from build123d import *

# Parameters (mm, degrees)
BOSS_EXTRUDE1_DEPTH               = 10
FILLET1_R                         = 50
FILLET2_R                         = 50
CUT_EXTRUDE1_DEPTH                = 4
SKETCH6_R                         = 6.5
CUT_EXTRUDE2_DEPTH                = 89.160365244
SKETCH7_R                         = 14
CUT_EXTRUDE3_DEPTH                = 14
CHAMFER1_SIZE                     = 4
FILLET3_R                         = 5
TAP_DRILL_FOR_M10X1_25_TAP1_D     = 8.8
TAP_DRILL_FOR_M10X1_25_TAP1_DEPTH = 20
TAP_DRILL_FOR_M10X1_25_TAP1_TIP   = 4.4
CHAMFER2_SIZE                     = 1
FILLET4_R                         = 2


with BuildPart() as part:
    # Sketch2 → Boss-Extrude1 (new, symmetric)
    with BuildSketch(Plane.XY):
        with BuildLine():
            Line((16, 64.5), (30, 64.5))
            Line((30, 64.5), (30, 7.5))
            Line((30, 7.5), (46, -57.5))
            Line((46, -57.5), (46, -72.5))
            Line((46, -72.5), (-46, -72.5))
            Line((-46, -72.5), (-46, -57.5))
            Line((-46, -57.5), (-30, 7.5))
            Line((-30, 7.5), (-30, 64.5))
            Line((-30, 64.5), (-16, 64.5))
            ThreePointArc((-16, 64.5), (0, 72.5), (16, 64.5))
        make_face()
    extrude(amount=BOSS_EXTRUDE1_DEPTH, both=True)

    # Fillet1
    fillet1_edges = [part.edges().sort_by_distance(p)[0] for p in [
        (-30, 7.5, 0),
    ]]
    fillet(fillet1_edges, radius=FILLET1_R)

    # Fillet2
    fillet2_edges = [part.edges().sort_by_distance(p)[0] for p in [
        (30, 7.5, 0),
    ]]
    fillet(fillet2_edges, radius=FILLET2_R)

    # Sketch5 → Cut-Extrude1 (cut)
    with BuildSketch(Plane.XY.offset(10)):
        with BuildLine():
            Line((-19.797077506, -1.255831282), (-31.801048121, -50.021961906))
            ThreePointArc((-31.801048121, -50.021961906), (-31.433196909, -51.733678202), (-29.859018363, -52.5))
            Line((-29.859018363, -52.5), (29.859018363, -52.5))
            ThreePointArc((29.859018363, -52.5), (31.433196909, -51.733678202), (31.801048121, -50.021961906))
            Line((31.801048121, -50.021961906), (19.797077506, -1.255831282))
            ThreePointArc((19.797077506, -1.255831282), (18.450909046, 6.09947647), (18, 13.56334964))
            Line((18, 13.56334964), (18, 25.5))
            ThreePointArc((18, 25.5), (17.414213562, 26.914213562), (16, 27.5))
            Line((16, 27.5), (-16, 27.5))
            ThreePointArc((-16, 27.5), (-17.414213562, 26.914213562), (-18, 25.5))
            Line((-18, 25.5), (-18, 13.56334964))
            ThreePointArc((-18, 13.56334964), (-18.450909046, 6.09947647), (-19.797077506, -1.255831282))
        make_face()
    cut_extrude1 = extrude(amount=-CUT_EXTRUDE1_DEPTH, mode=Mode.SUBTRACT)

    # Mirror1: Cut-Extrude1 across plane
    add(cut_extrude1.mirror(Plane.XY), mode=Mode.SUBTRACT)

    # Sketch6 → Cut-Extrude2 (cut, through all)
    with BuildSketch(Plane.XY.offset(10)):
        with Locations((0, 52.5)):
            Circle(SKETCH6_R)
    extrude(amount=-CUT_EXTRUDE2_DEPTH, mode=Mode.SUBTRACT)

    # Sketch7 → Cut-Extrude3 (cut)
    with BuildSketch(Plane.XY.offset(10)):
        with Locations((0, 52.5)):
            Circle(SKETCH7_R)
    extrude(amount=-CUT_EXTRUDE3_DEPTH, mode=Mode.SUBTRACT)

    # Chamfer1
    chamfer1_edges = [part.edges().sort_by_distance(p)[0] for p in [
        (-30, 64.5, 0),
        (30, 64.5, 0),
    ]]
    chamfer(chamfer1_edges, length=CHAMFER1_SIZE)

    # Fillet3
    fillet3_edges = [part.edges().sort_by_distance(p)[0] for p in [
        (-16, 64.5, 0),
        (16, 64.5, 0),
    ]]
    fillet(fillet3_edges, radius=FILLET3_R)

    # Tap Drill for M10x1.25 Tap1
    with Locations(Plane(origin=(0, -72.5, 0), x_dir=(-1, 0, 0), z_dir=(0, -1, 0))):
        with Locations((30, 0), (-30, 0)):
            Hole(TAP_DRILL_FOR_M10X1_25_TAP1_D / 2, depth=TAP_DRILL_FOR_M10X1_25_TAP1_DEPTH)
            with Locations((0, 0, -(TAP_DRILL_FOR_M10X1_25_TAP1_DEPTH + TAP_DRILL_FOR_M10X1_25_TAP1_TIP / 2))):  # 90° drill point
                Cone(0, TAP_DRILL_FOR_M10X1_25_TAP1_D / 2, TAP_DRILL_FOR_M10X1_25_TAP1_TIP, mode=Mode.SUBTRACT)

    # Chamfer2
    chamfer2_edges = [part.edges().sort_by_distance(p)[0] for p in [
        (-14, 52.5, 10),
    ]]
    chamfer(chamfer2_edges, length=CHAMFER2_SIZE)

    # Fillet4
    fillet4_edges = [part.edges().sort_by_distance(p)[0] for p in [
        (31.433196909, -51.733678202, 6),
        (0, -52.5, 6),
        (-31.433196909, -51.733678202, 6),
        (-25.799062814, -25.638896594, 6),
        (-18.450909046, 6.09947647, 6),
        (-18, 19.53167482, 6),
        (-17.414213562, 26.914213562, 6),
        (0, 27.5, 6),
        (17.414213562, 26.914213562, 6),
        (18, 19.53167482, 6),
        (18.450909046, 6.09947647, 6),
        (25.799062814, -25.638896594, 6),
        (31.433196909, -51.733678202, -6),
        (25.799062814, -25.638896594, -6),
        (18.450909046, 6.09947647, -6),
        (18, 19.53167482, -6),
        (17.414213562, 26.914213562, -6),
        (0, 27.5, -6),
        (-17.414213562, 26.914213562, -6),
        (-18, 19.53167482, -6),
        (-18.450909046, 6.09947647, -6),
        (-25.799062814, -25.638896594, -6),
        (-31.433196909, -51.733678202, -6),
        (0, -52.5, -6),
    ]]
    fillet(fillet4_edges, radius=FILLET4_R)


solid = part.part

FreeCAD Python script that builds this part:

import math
import FreeCAD as App
import Part
import Sketcher


def edges_at(feature, points):
    """Names of the edges that pass closest to the given points."""
    edges = feature.Shape.Edges
    near = lambda p: min(range(len(edges)), key=lambda i: edges[i].distToShape(Part.Vertex(*p))[0])
    return sorted({f"Edge{near(p) + 1}" for p in points})

doc = App.newDocument("Part")
body = doc.addObject("PartDesign::Body", "Body")

# Sketch on XY plane
sketch1 = body.newObject("Sketcher::SketchObject", "Sketch")
sketch1.AttachmentSupport = (doc.getObject("XY_Plane"), [""])
sketch1.MapMode = "FlatFace"
sketch1.addGeometry(Part.LineSegment(App.Vector(30, 64, 0), App.Vector(16, 64, 0)), False)
sketch1.addGeometry(Part.ArcOfCircle(Part.Circle(App.Vector(0, 52, 0), App.Vector(0, 0, 1), 20), math.radians(37), math.radians(143)), False)
sketch1.addGeometry(Part.LineSegment(App.Vector(-16, 64, 0), App.Vector(-30, 64, 0)), False)
sketch1.addGeometry(Part.LineSegment(App.Vector(-30, 64, 0), App.Vector(-30, 8, 0)), False)
sketch1.addGeometry(Part.LineSegment(App.Vector(-30, 8, 0), App.Vector(-46, -58, 0)), False)
sketch1.addGeometry(Part.LineSegment(App.Vector(-46, -58, 0), App.Vector(-46, -72, 0)), False)
sketch1.addGeometry(Part.LineSegment(App.Vector(-46, -72, 0), App.Vector(46, -72, 0)), False)
sketch1.addGeometry(Part.LineSegment(App.Vector(46, -72, 0), App.Vector(46, -58, 0)), False)
sketch1.addGeometry(Part.LineSegment(App.Vector(46, -58, 0), App.Vector(30, 8, 0)), False)
sketch1.addGeometry(Part.LineSegment(App.Vector(30, 8, 0), App.Vector(30, 64, 0)), False)
sketch1.addConstraint(Sketcher.Constraint("Coincident", 0, 2, 1, 1))
sketch1.addConstraint(Sketcher.Constraint("Coincident", 1, 2, 2, 1))
sketch1.addConstraint(Sketcher.Constraint("Coincident", 2, 2, 3, 1))
sketch1.addConstraint(Sketcher.Constraint("Coincident", 3, 2, 4, 1))
sketch1.addConstraint(Sketcher.Constraint("Coincident", 4, 2, 5, 1))
sketch1.addConstraint(Sketcher.Constraint("Coincident", 5, 2, 6, 1))
sketch1.addConstraint(Sketcher.Constraint("Coincident", 6, 2, 7, 1))
sketch1.addConstraint(Sketcher.Constraint("Coincident", 7, 2, 8, 1))
sketch1.addConstraint(Sketcher.Constraint("Coincident", 8, 2, 9, 1))
sketch1.addConstraint(Sketcher.Constraint("Coincident", 9, 2, 0, 1))
sketch1.addConstraint(Sketcher.Constraint("Horizontal", 0))
sketch1.addConstraint(Sketcher.Constraint("Horizontal", 2))
sketch1.addConstraint(Sketcher.Constraint("Vertical", 3))
sketch1.addConstraint(Sketcher.Constraint("Vertical", 5))
sketch1.addConstraint(Sketcher.Constraint("Horizontal", 6))
sketch1.addConstraint(Sketcher.Constraint("Vertical", 7))
sketch1.addConstraint(Sketcher.Constraint("Vertical", 9))
sketch1.addConstraint(Sketcher.Constraint("Symmetric", 0, 2, 1, 2, -2))
sketch1.addConstraint(Sketcher.Constraint("Symmetric", 4, 2, 7, 2, -2))
sketch1.addConstraint(Sketcher.Constraint("Symmetric", 3, 2, 8, 2, -2))
sketch1.addConstraint(Sketcher.Constraint("Radius", 1, 20.0))
sketch1.addConstraint(Sketcher.Constraint("DistanceX", 0, 2, 0, 1, 14.0))
sketch1.addConstraint(Sketcher.Constraint("DistanceX", 6, 1, 6, 2, 92.0))
sketch1.addConstraint(Sketcher.Constraint("DistanceY", 3, 2, 3, 1, 57.0))
sketch1.addConstraint(Sketcher.Constraint("DistanceY", 5, 2, 5, 1, 15.0))
sketch1.addConstraint(Sketcher.Constraint("DistanceX", -1, 1, 0, 2, 16.0))
sketch1.addConstraint(Sketcher.Constraint("DistanceY", 4, 2, 3, 2, 65.0))
sketch1.addConstraint(Sketcher.Constraint("DistanceY", -1, 1, 1, 3, 52.5))
pad1 = body.newObject("PartDesign::Pad", "Pad")
pad1.Profile = sketch1
pad1.Length = 20
pad1.Midplane = True
doc.recompute()

fillet = body.newObject("PartDesign::Fillet", "Fillet")
fillet.Base = (pad1, edges_at(pad1, [(-30, 7.5, 0)]))
fillet.Radius = 50
doc.recompute()

fillet2 = body.newObject("PartDesign::Fillet", "Fillet001")
fillet2.Base = (fillet, edges_at(fillet, [(30, 7.5, 0)]))
fillet2.Radius = 50

# Sketch on XY plane
sketch2 = body.newObject("Sketcher::SketchObject", "Sketch001")
sketch2.AttachmentSupport = (doc.getObject("XY_Plane"), [""])
sketch2.MapMode = "FlatFace"
sketch2.AttachmentOffset = App.Placement(App.Vector(0, 0, 10), App.Rotation())
sketch2.addGeometry(Part.LineSegment(App.Vector(-19.8, -1.3, 0), App.Vector(-31.8, -50, 0)), False)
sketch2.addGeometry(Part.ArcOfCircle(Part.Circle(App.Vector(-29.9, -50.5, 0), App.Vector(0, 0, 1), 2), math.radians(166), math.radians(270)), False)
sketch2.addGeometry(Part.LineSegment(App.Vector(-29.9, -52.5, 0), App.Vector(29.9, -52.5, 0)), False)
sketch2.addGeometry(Part.ArcOfCircle(Part.Circle(App.Vector(29.9, -50.5, 0), App.Vector(0, 0, 1), 2), math.radians(-90), math.radians(14)), False)
sketch2.addGeometry(Part.LineSegment(App.Vector(31.8, -50, 0), App.Vector(19.8, -1.3, 0)), False)
sketch2.addGeometry(Part.ArcOfCircle(Part.Circle(App.Vector(80, 13.6, 0), App.Vector(0, 0, 1), 62), math.radians(-180), math.radians(-166.17)), False)
sketch2.addGeometry(Part.LineSegment(App.Vector(18, 13.6, 0), App.Vector(18, 25.5, 0)), False)
sketch2.addGeometry(Part.ArcOfCircle(Part.Circle(App.Vector(16, 25.5, 0), App.Vector(0, 0, 1), 2), math.radians(0), math.radians(90)), False)
sketch2.addGeometry(Part.LineSegment(App.Vector(16, 27.5, 0), App.Vector(-16, 27.5, 0)), False)
sketch2.addGeometry(Part.ArcOfCircle(Part.Circle(App.Vector(-16, 25.5, 0), App.Vector(0, 0, 1), 2), math.radians(90), math.radians(180)), False)
sketch2.addGeometry(Part.LineSegment(App.Vector(-18, 25.5, 0), App.Vector(-18, 13.6, 0)), False)
sketch2.addGeometry(Part.ArcOfCircle(Part.Circle(App.Vector(-80, 13.6, 0), App.Vector(0, 0, 1), 62), math.radians(-13.83), math.radians(0)), False)
sketch2.addConstraint(Sketcher.Constraint("Tangent", 0, 2, 1, 1))
sketch2.addConstraint(Sketcher.Constraint("Tangent", 1, 2, 2, 1))
sketch2.addConstraint(Sketcher.Constraint("Tangent", 2, 2, 3, 1))
sketch2.addConstraint(Sketcher.Constraint("Tangent", 3, 2, 4, 1))
sketch2.addConstraint(Sketcher.Constraint("Tangent", 4, 2, 5, 2))
sketch2.addConstraint(Sketcher.Constraint("Tangent", 5, 1, 6, 1))
sketch2.addConstraint(Sketcher.Constraint("Tangent", 6, 2, 7, 1))
sketch2.addConstraint(Sketcher.Constraint("Tangent", 7, 2, 8, 1))
sketch2.addConstraint(Sketcher.Constraint("Tangent", 8, 2, 9, 1))
sketch2.addConstraint(Sketcher.Constraint("Tangent", 9, 2, 10, 1))
sketch2.addConstraint(Sketcher.Constraint("Tangent", 10, 2, 11, 2))
sketch2.addConstraint(Sketcher.Constraint("Tangent", 11, 1, 0, 1))
sketch2.addConstraint(Sketcher.Constraint("Horizontal", 2))
sketch2.addConstraint(Sketcher.Constraint("Vertical", 6))
sketch2.addConstraint(Sketcher.Constraint("Horizontal", 8))
sketch2.addConstraint(Sketcher.Constraint("Vertical", 10))
sketch2.addConstraint(Sketcher.Constraint("Equal", 1, 3))
sketch2.addConstraint(Sketcher.Constraint("Equal", 3, 7))
sketch2.addConstraint(Sketcher.Constraint("Equal", 7, 9))
sketch2.addConstraint(Sketcher.Constraint("Equal", 5, 11))
sketch2.addConstraint(Sketcher.Constraint("Symmetric", 5, 3, 11, 3, -2))
sketch2.addConstraint(Sketcher.Constraint("Horizontal", 0, 2, 3, 2))
sketch2.addConstraint(Sketcher.Constraint("Radius", 1, 2.0))
sketch2.addConstraint(Sketcher.Constraint("Radius", 5, 62.0))
sketch2.addConstraint(Sketcher.Constraint("DistanceX", 8, 2, 8, 1, 32.0))
sketch2.addConstraint(Sketcher.Constraint("DistanceY", 3, 3, 7, 3, 76.0))
sketch2.addConstraint(Sketcher.Constraint("DistanceY", 1, 3, -1, 1, 50.5))
sketch2.addConstraint(Sketcher.Constraint("DistanceY", 6, 1, 6, 2, 11.93665))
sketch2.addConstraint(Sketcher.Constraint("DistanceX", 2, 1, 2, 2, 59.718037))
pocket1 = body.newObject("PartDesign::Pocket", "Pocket")
pocket1.Profile = sketch2
pocket1.Length = 4
doc.recompute()

mirrored = body.newObject("PartDesign::Mirrored", "Mirrored")
mirrored.Originals = [pocket1]
mirrored.MirrorPlane = (doc.getObject("XY_Plane"), [""])
body.Tip = mirrored

# Sketch on XY plane
sketch3 = body.newObject("Sketcher::SketchObject", "Sketch002")
sketch3.AttachmentSupport = (doc.getObject("XY_Plane"), [""])
sketch3.MapMode = "FlatFace"
sketch3.AttachmentOffset = App.Placement(App.Vector(0, 0, 10), App.Rotation())
sketch3.addGeometry(Part.Circle(App.Vector(0, 52, 0), App.Vector(0, 0, 1), 6), False)
sketch3.addConstraint(Sketcher.Constraint("PointOnObject", 0, 3, -2))
sketch3.addConstraint(Sketcher.Constraint("Diameter", 0, 13.0))
sketch3.addConstraint(Sketcher.Constraint("DistanceY", -1, 1, 0, 3, 52.5))
pocket2 = body.newObject("PartDesign::Pocket", "Pocket001")
pocket2.Profile = sketch3
pocket2.Type = "ThroughAll"

# Sketch on XY plane
sketch4 = body.newObject("Sketcher::SketchObject", "Sketch003")
sketch4.AttachmentSupport = (doc.getObject("XY_Plane"), [""])
sketch4.MapMode = "FlatFace"
sketch4.AttachmentOffset = App.Placement(App.Vector(0, 0, 10), App.Rotation())
sketch4.addGeometry(Part.Circle(App.Vector(0, 52, 0), App.Vector(0, 0, 1), 14), False)
sketch4.addConstraint(Sketcher.Constraint("PointOnObject", 0, 3, -2))
sketch4.addConstraint(Sketcher.Constraint("Diameter", 0, 28.0))
sketch4.addConstraint(Sketcher.Constraint("DistanceY", -1, 1, 0, 3, 52.5))
pocket3 = body.newObject("PartDesign::Pocket", "Pocket002")
pocket3.Profile = sketch4
pocket3.Length = 14
doc.recompute()

chamfer = body.newObject("PartDesign::Chamfer", "Chamfer")
chamfer.Base = (pocket3, edges_at(pocket3, [(-30, 64.5, 0), (30, 64.5, 0)]))
chamfer.Size = 4
doc.recompute()

fillet3 = body.newObject("PartDesign::Fillet", "Fillet002")
fillet3.Base = (chamfer, edges_at(chamfer, [(-16, 64.5, 0), (16, 64.5, 0)]))
fillet3.Radius = 5

# Sketch on XZ plane
sketch5 = body.newObject("Sketcher::SketchObject", "Sketch004")
sketch5.AttachmentSupport = (doc.getObject("XZ_Plane"), [""])
sketch5.MapMode = "FlatFace"
sketch5.AttachmentOffset = App.Placement(App.Vector(0, 0, 72.5), App.Rotation())
sketch5.addGeometry(Part.Circle(App.Vector(-30, 0, 0), App.Vector(0, 0, 1), 4.4), False)
sketch5.addGeometry(Part.Circle(App.Vector(30, 0, 0), App.Vector(0, 0, 1), 4.4), False)
sketch5.addConstraint(Sketcher.Constraint("Equal", 0, 1))
sketch5.addConstraint(Sketcher.Constraint("Symmetric", 0, 3, 1, 3, -1, 1))
sketch5.addConstraint(Sketcher.Constraint("PointOnObject", 0, 3, -1))
sketch5.addConstraint(Sketcher.Constraint("Diameter", 0, 8.8))
sketch5.addConstraint(Sketcher.Constraint("DistanceX", 0, 3, -1, 1, 30.0))
doc.recompute()
hole = body.newObject("PartDesign::Hole", "Hole")
hole.Profile = sketch5
hole.ThreadType = "None"
hole.Diameter = 8.8
hole.DepthType = "Dimension"
hole.Depth = 20
hole.DrillPoint = "Angled"
hole.DrillPointAngle = 90
doc.recompute()

chamfer2 = body.newObject("PartDesign::Chamfer", "Chamfer001")
chamfer2.Base = (hole, edges_at(hole, [(-14, 52.5, 10)]))
chamfer2.Size = 1
doc.recompute()

fillet4 = body.newObject("PartDesign::Fillet", "Fillet003")
fillet4.Base = (chamfer2, edges_at(chamfer2, [
    (31.433, -51.734, 6),
    (0, -52.5, 6),
    (-31.433, -51.734, 6),
    (-25.799, -25.639, 6),
    (-18.451, 6.099, 6),
    (-18, 19.532, 6),
    (-17.414, 26.914, 6),
    (0, 27.5, 6),
    (17.414, 26.914, 6),
    (18, 19.532, 6),
    (18.451, 6.099, 6),
    (25.799, -25.639, 6),
    (31.433, -51.734, -6),
    (25.799, -25.639, -6),
    (18.451, 6.099, -6),
    (18, 19.532, -6),
    (17.414, 26.914, -6),
    (0, 27.5, -6),
    (-17.414, 26.914, -6),
    (-18, 19.532, -6),
    (-18.451, 6.099, -6),
    (-25.799, -25.639, -6),
    (-31.433, -51.734, -6),
    (0, -52.5, -6),
]))
fillet4.Radius = 2

doc.recompute()
